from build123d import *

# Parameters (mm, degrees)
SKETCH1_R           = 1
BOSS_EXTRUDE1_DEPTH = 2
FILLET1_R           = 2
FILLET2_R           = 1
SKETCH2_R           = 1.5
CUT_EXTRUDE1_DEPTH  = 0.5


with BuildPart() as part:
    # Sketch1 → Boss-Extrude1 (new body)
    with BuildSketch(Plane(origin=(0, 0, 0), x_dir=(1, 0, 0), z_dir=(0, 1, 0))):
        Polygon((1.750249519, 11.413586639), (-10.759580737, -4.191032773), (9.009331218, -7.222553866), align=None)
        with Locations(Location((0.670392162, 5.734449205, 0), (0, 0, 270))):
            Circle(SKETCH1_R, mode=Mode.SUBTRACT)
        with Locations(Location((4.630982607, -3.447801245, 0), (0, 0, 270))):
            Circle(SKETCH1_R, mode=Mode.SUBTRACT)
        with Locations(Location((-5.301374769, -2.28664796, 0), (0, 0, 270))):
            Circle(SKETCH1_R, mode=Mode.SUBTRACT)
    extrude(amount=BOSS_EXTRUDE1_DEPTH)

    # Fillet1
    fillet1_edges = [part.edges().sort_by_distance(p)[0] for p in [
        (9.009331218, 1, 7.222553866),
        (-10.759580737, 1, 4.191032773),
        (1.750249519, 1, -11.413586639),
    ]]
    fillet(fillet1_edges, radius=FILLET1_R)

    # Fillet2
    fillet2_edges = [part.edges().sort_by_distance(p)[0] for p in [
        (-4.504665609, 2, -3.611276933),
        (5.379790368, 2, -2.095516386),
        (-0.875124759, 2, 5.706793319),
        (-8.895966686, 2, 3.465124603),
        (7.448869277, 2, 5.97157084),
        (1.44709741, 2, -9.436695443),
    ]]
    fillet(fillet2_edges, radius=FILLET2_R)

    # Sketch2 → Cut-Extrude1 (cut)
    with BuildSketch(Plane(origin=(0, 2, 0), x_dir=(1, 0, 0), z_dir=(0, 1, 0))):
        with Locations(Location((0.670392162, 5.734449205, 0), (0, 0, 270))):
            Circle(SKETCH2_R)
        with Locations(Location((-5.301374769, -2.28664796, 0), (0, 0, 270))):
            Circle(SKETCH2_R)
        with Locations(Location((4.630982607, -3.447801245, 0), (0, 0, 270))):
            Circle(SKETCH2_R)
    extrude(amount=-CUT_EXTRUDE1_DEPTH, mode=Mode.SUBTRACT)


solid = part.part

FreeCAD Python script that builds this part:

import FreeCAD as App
import Part
import Sketcher


def edges_at(feature, points):
    """Names of the edges that pass closest to the given points."""
    edges = feature.Shape.Edges
    near = lambda p: min(range(len(edges)), key=lambda i: edges[i].distToShape(Part.Vertex(*p))[0])
    return sorted({f"Edge{near(p) + 1}" for p in points})

doc = App.newDocument("Part")
body = doc.addObject("PartDesign::Body", "Body")

# Sketch on XZ plane
sketch1 = doc.addObject("Sketcher::SketchObject", "Sketch")
body.addObject(sketch1)
sketch1.AttachmentSupport = (doc.XZ_Plane, [""])
sketch1.MapMode = "FlatFace"
sketch1.addGeometry(Part.LineSegment(App.Vector(1.8, -11.4, 0), App.Vector(-10.8, 4.2, 0)), False)
sketch1.addGeometry(Part.LineSegment(App.Vector(-10.8, 4.2, 0), App.Vector(9, 7.2, 0)), False)
sketch1.addGeometry(Part.LineSegment(App.Vector(9, 7.2, 0), App.Vector(1.8, -11.4, 0)), False)
sketch1.addGeometry(Part.Circle(App.Vector(-5.3, 2.3, 0), App.Vector(0, 0, 1), 1), False)
sketch1.addGeometry(Part.Circle(App.Vector(4.6, 3.4, 0), App.Vector(0, 0, 1), 1), False)
sketch1.addGeometry(Part.Circle(App.Vector(0.7, -5.7, 0), App.Vector(0, 0, 1), 1), False)
sketch1.addConstraint(Sketcher.Constraint("Coincident", 0, 2, 1, 1))
sketch1.addConstraint(Sketcher.Constraint("Coincident", 1, 2, 2, 1))
sketch1.addConstraint(Sketcher.Constraint("Coincident", 2, 2, 0, 1))
sketch1.addConstraint(Sketcher.Constraint("Equal", 3, 4))
sketch1.addConstraint(Sketcher.Constraint("Equal", 4, 5))
sketch1.addConstraint(Sketcher.Constraint("Equal", 0, 1))
sketch1.addConstraint(Sketcher.Constraint("Equal", 1, 2))
sketch1.addConstraint(Sketcher.Constraint("Diameter", 3, 2.0))
sketch1.addConstraint(Sketcher.Constraint("Distance", 0, 20.0))
sketch1.addConstraint(Sketcher.Constraint("DistanceY", -1, 1, 4, 3, 3.447801))
sketch1.addConstraint(Sketcher.Constraint("DistanceY", 5, 3, -1, 1, 5.734449))
sketch1.addConstraint(Sketcher.Constraint("DistanceX", 0, 2, -1, 1, 10.759581))
sketch1.addConstraint(Sketcher.Constraint("DistanceX", -1, 1, 1, 2, 9.009331))
sketch1.addConstraint(Sketcher.Constraint("DistanceX", 5, 3, 4, 3, 3.96059))
sketch1.addConstraint(Sketcher.Constraint("DistanceY", 5, 3, 0, 2, 9.925482))
sketch1.addConstraint(Sketcher.Constraint("DistanceX", 4, 3, 1, 2, 4.378349))
sketch1.addConstraint(Sketcher.Constraint("DistanceX", 3, 3, -1, 1, 5.301375))
sketch1.addConstraint(Sketcher.Constraint("DistanceY", -1, 1, 3, 3, 2.286648))
pad1 = doc.addObject("PartDesign::Pad", "Pad")
body.addObject(pad1)
pad1.Profile = sketch1
pad1.Length = 2
pad1.Reversed = True
doc.recompute()

fillet = doc.addObject("PartDesign::Fillet", "Fillet")
body.addObject(fillet)
fillet.Base = (pad1, edges_at(pad1, [(9.009, 1, 7.223), (-10.76, 1, 4.191), (1.75, 1, -11.414)]))
fillet.Radius = 2
doc.recompute()

fillet2 = doc.addObject("PartDesign::Fillet", "Fillet001")
body.addObject(fillet2)
fillet2.Base = (fillet, edges_at(fillet, [
    (-4.505, 2, -3.611),
    (5.38, 2, -2.096),
    (-0.875, 2, 5.707),
    (-8.896, 2, 3.465),
    (7.449, 2, 5.972),
    (1.447, 2, -9.437),
]))
fillet2.Radius = 1

# Sketch on XZ plane
sketch2 = doc.addObject("Sketcher::SketchObject", "Sketch001")
body.addObject(sketch2)
sketch2.AttachmentSupport = (doc.XZ_Plane, [""])
sketch2.MapMode = "FlatFace"
sketch2.AttachmentOffset = App.Placement(App.Vector(0, 0, -2), App.Rotation())
sketch2.addGeometry(Part.Circle(App.Vector(0.7, -5.7, 0), App.Vector(0, 0, 1), 1.5), False)
sketch2.addGeometry(Part.Circle(App.Vector(-5.3, 2.3, 0), App.Vector(0, 0, 1), 1.5), False)
sketch2.addGeometry(Part.Circle(App.Vector(4.6, 3.4, 0), App.Vector(0, 0, 1), 1.5), False)
sketch2.addConstraint(Sketcher.Constraint("Equal", 0, 1))
sketch2.addConstraint(Sketcher.Constraint("Equal", 1, 2))
sketch2.addConstraint(Sketcher.Constraint("Diameter", 0, 3.0))
sketch2.addConstraint(Sketcher.Constraint("DistanceY", -1, 1, 2, 3, 3.447801))
sketch2.addConstraint(Sketcher.Constraint("DistanceY", 0, 3, -1, 1, 5.734449))
sketch2.addConstraint(Sketcher.Constraint("DistanceX", 0, 3, 2, 3, 3.96059))
sketch2.addConstraint(Sketcher.Constraint("DistanceX", -1, 1, 0, 3, 0.670392))
sketch2.addConstraint(Sketcher.Constraint("DistanceX", 1, 3, -1, 1, 5.301375))
sketch2.addConstraint(Sketcher.Constraint("DistanceY", -1, 1, 1, 3, 2.286648))
pocket1 = doc.addObject("PartDesign::Pocket", "Pocket")
body.addObject(pocket1)
pocket1.Profile = sketch2
pocket1.Length = 0.5
pocket1.Reversed = True

doc.recompute()
